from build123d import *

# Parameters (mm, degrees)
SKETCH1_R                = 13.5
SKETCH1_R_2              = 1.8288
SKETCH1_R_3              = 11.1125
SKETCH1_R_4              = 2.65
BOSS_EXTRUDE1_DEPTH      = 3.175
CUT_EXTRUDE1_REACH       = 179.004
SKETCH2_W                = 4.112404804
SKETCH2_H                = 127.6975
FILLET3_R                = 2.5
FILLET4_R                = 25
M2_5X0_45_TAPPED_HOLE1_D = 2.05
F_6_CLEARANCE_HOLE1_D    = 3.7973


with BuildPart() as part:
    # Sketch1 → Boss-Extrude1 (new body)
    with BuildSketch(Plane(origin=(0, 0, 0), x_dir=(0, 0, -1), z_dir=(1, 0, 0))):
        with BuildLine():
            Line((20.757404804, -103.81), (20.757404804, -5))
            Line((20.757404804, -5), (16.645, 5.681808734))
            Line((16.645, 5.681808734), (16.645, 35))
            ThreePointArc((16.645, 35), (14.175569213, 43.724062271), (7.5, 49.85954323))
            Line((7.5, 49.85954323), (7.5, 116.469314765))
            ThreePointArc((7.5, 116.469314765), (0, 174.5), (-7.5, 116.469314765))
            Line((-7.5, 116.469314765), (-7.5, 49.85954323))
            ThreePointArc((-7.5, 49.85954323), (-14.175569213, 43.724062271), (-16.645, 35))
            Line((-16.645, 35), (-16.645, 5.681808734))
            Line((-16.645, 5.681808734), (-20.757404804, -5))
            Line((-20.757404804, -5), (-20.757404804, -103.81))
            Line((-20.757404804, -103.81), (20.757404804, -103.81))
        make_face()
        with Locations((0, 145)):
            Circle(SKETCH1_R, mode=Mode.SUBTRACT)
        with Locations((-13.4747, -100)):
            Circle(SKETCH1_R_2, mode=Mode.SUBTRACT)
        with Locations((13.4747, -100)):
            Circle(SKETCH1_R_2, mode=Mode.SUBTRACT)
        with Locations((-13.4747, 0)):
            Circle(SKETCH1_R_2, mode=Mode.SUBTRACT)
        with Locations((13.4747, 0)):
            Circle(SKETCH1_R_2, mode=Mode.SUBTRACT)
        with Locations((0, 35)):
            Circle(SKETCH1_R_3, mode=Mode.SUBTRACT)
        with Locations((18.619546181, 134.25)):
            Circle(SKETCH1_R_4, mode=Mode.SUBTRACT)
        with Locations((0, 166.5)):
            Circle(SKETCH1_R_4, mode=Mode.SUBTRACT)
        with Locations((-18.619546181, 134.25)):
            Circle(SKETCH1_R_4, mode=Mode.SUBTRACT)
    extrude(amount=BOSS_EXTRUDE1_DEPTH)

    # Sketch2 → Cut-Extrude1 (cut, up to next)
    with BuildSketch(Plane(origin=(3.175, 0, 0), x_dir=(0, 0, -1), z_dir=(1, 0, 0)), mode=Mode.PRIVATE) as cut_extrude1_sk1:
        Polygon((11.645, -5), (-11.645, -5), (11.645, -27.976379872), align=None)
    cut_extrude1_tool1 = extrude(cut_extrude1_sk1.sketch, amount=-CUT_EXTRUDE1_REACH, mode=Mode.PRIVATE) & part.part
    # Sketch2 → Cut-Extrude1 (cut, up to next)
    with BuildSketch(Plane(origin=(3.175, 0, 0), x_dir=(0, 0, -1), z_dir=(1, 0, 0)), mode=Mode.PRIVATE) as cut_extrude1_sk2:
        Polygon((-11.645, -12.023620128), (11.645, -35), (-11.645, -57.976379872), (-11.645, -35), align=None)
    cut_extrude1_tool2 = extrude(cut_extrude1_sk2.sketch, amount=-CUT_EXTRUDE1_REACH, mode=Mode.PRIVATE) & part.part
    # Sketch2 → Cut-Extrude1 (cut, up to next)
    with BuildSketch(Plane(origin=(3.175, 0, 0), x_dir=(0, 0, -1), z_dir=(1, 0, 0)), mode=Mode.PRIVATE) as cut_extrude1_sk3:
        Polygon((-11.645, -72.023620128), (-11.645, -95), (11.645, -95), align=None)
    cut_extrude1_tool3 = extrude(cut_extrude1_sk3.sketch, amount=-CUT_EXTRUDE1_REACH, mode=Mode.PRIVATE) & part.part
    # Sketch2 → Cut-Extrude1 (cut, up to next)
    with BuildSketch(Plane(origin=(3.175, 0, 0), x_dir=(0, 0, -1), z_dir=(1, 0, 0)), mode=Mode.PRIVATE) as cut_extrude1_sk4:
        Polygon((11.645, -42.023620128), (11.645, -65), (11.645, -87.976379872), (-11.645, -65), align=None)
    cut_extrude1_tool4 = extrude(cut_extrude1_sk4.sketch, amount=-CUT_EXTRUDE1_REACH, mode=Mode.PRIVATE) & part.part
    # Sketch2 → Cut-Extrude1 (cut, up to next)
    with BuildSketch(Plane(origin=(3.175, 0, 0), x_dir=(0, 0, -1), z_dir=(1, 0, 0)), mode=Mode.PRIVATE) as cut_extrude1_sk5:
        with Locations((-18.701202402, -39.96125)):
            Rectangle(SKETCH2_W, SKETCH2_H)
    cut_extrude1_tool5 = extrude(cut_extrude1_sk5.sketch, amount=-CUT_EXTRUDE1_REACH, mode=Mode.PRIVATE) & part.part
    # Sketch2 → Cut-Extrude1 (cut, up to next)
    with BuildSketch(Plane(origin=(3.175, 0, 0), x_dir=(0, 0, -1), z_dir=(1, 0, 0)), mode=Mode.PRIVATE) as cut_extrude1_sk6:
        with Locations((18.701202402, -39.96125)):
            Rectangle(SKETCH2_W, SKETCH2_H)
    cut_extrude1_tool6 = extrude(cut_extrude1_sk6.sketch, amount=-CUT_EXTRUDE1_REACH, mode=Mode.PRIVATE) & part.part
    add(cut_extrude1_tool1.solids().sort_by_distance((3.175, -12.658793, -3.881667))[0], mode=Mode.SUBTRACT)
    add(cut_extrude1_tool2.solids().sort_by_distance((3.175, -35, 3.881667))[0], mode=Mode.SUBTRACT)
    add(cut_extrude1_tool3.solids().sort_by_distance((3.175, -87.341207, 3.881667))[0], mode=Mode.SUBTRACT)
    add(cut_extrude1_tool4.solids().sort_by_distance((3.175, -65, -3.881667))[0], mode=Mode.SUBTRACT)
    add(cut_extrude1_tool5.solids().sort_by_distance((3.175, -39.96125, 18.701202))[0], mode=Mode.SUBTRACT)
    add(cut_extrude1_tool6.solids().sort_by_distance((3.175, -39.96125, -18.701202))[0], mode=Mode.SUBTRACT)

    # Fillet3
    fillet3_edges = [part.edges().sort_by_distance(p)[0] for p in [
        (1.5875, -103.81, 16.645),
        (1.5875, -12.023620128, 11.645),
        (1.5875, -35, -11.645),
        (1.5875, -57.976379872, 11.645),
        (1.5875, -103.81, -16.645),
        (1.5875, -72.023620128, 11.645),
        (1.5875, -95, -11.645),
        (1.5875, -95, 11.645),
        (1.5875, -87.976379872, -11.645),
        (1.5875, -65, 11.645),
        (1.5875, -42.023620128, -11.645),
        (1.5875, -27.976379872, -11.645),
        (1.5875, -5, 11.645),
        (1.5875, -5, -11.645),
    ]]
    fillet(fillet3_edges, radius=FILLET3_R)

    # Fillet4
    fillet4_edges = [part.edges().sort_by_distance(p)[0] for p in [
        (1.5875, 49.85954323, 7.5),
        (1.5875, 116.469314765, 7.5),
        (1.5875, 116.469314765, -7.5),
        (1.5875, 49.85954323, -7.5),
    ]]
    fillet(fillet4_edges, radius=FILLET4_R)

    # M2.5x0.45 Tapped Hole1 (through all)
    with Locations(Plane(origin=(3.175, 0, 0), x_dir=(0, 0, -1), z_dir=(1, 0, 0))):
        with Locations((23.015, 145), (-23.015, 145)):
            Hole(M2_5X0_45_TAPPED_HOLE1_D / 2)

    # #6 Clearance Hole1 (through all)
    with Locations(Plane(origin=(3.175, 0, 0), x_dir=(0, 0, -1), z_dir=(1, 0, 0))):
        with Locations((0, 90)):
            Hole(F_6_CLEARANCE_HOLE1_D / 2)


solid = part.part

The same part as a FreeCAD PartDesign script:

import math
import FreeCAD as App
import Part
import Sketcher
Q = App.Units.Quantity


def edges_at(feature, points):
    """Names of the edges that pass closest to the given points."""
    edges = feature.Shape.Edges
    near = lambda p: min(range(len(edges)), key=lambda i: edges[i].distToShape(Part.Vertex(*p))[0])
    return sorted({f"Edge{near(p) + 1}" for p in points})

doc = App.newDocument("Part")
body = doc.addObject("PartDesign::Body", "Body")

# Sketch on YZ plane
sketch1 = body.newObject("Sketcher::SketchObject", "Sketch")
sketch1.AttachmentSupport = (doc.getObject("YZ_Plane"), [""])
sketch1.MapMode = "FlatFace"
sketch1.addGeometry([
    Part.LineSegment(App.Vector(-103.8, -20.8, 0), App.Vector(-5, -20.8, 0)),  # 0
    Part.LineSegment(App.Vector(-5, -20.8, 0), App.Vector(5.7, -16.6, 0)),  # 1
    Part.LineSegment(App.Vector(5.7, -16.6, 0), App.Vector(35, -16.6, 0)),  # 2
    Part.ArcOfCircle(Part.Circle(App.Vector(35, 0, 0), App.Vector(0, 0, 1), 16.6), math.radians(-90), math.radians(-27)),  # 3
    Part.LineSegment(App.Vector(49.9, -7.5, 0), App.Vector(116.5, -7.5, 0)),  # 4
    Part.ArcOfCircle(Part.Circle(App.Vector(145, 0, 0), App.Vector(0, 0, 1), 29.5), math.radians(-165), math.radians(165)),  # 5
    Part.LineSegment(App.Vector(116.5, 7.5, 0), App.Vector(49.9, 7.5, 0)),  # 6
    Part.ArcOfCircle(Part.Circle(App.Vector(35, 0, 0), App.Vector(0, 0, 1), 16.6), math.radians(27), math.radians(90)),  # 7
    Part.LineSegment(App.Vector(35, 16.6, 0), App.Vector(5.7, 16.6, 0)),  # 8
    Part.LineSegment(App.Vector(5.7, 16.6, 0), App.Vector(-5, 20.8, 0)),  # 9
    Part.LineSegment(App.Vector(-5, 20.8, 0), App.Vector(-103.8, 20.8, 0)),  # 10
    Part.LineSegment(App.Vector(-103.8, 20.8, 0), App.Vector(-103.8, -20.8, 0)),  # 11
    Part.Circle(App.Vector(-100, 13.5, 0), App.Vector(0, 0, 1), 1.8),  # 12
    Part.Circle(App.Vector(0, 13.5, 0), App.Vector(0, 0, 1), 1.8),  # 13
    Part.Circle(App.Vector(-100, -13.5, 0), App.Vector(0, 0, 1), 1.8),  # 14
    Part.Circle(App.Vector(0, -13.5, 0), App.Vector(0, 0, 1), 1.8),  # 15
    Part.Circle(App.Vector(134.2, 18.6, 0), App.Vector(0, 0, 1), 2.6),  # 16
    Part.Circle(App.Vector(35, 0, 0), App.Vector(0, 0, 1), 11.1),  # 17
    Part.Circle(App.Vector(145, 0, 0), App.Vector(0, 0, 1), 13.5),  # 18
    Part.Circle(App.Vector(166.5, 0, 0), App.Vector(0, 0, 1), 2.6),  # 19
    Part.Circle(App.Vector(134.2, -18.6, 0), App.Vector(0, 0, 1), 2.6),  # 20
], False)
sketch1.addConstraint([
    Sketcher.Constraint("Coincident", 0, 2, 1, 1),
    Sketcher.Constraint("Coincident", 1, 2, 2, 1),
    Sketcher.Constraint("Tangent", 2, 2, 3, 1),
    Sketcher.Constraint("Coincident", 3, 2, 4, 1),
    Sketcher.Constraint("Coincident", 4, 2, 5, 1),
    Sketcher.Constraint("Coincident", 5, 2, 6, 1),
    Sketcher.Constraint("Coincident", 6, 2, 7, 1),
    Sketcher.Constraint("Tangent", 7, 2, 8, 1),
    Sketcher.Constraint("Coincident", 8, 2, 9, 1),
    Sketcher.Constraint("Coincident", 9, 2, 10, 1),
    Sketcher.Constraint("Coincident", 10, 2, 11, 1),
    Sketcher.Constraint("Coincident", 11, 2, 0, 1),
    Sketcher.Constraint("Horizontal", 0),
    Sketcher.Constraint("Horizontal", 2),
    Sketcher.Constraint("Horizontal", 4),
    Sketcher.Constraint("Horizontal", 6),
    Sketcher.Constraint("Horizontal", 8),
    Sketcher.Constraint("Horizontal", 10),
    Sketcher.Constraint("Vertical", 11),
    Sketcher.Constraint("Coincident", 7, 3, 3, 3),
    Sketcher.Constraint("Coincident", 17, 3, 3, 3),
    Sketcher.Constraint("Coincident", 18, 3, 5, 3),
    Sketcher.Constraint("Equal", 3, 7),
    Sketcher.Constraint("Equal", 12, 13),
    Sketcher.Constraint("Equal", 13, 14),
    Sketcher.Constraint("Equal", 14, 15),
    Sketcher.Constraint("Equal", 16, 19),
    Sketcher.Constraint("Equal", 19, 20),
    Sketcher.Constraint("Symmetric", 13, 3, 15, 3, -1, 1),
    Sketcher.Constraint("Symmetric", 12, 3, 14, 3, -1),
    Sketcher.Constraint("Symmetric", 16, 3, 20, 3, -1),
    Sketcher.Constraint("Symmetric", 4, 2, 5, 2, -1),
    Sketcher.Constraint("Symmetric", 1, 2, 8, 2, -1),
    Sketcher.Constraint("Symmetric", 0, 2, 9, 2, -1),
    Sketcher.Constraint("PointOnObject", 13, 3, -2),
    Sketcher.Constraint("PointOnObject", 19, 3, -1),
    Sketcher.Constraint("Horizontal", 12, 3, 13, 3),
    Sketcher.Constraint("Diameter", 18, Q("27 mm")),
    Sketcher.Constraint("Diameter", 16, Q("5.3 mm")),
    Sketcher.Constraint("Radius", 5, Q("29.5 mm")),
    Sketcher.Constraint("Diameter", 17, Q("22.225 mm")),
    Sketcher.Constraint("DistanceX", -1, 1, 3, 3, Q("35 mm")),
    Sketcher.Constraint("DistanceX", -1, 1, 5, 3, Q("145 mm")),
    Sketcher.Constraint("DistanceX", 12, 3, -1, 1, Q("100 mm")),
    Sketcher.Constraint("DistanceX", 0, 2, -1, 1, Q("5 mm")),
    Sketcher.Constraint("Radius", 3, Q("16.645 mm")),
    Sketcher.Constraint("DistanceY", 4, 2, 5, 2, Q("15 mm")),
    Sketcher.Constraint("Diameter", 12, Q("3.6576 mm")),
    Sketcher.Constraint("DistanceX", 0, 1, 0, 2, Q("98.81 mm")),
    Sketcher.Constraint("DistanceX", -1, 1, 19, 3, Q("166.5 mm")),
    Sketcher.Constraint("DistanceX", -1, 1, 16, 3, Q("134.25 mm")),
    Sketcher.Constraint("DistanceX", 2, 1, 2, 2, Q("29.318191 mm")),
    Sketcher.Constraint("DistanceY", 11, 2, 11, 1, Q("41.51481 mm")),
    Sketcher.Constraint("DistanceY", -1, 1, 12, 3, Q("13.4747 mm")),
    Sketcher.Constraint("DistanceY", -1, 1, 16, 3, Q("18.619546 mm")),
])
pad1 = body.newObject("PartDesign::Pad", "Pad")
pad1.Profile = sketch1
pad1.Length = 3.175

# Sketch on YZ plane
sketch2 = body.newObject("Sketcher::SketchObject", "Sketch001")
sketch2.AttachmentSupport = (doc.getObject("YZ_Plane"), [""])
sketch2.MapMode = "FlatFace"
sketch2.AttachmentOffset = App.Placement(App.Vector(0, 0, 3.175), App.Rotation())
sketch2.addGeometry([
    Part.LineSegment(App.Vector(-5, -12, 0), App.Vector(-5, 12, 0)),
    Part.LineSegment(App.Vector(-5, 12, 0), App.Vector(-28, -12, 0)),
    Part.LineSegment(App.Vector(-28, -12, 0), App.Vector(-5, -12, 0)),
], False)
sketch2.addConstraint([
    Sketcher.Constraint("Coincident", 0, 2, 1, 1),
    Sketcher.Constraint("Coincident", 1, 2, 2, 1),
    Sketcher.Constraint("Coincident", 2, 2, 0, 1),
    Sketcher.Constraint("Vertical", 0),
    Sketcher.Constraint("Horizontal", 2),
    Sketcher.Constraint("DistanceX", 0, 2, -1, 1, Q("5 mm")),
    Sketcher.Constraint("DistanceY", 0, 1, 0, 2, Q("23.29 mm")),
    Sketcher.Constraint("DistanceY", -1, 1, 0, 2, Q("11.645 mm")),
    Sketcher.Constraint("DistanceX", 2, 1, 2, 2, Q("22.97638 mm")),
])
pocket1 = body.newObject("PartDesign::Pocket", "Pocket")
pocket1.Profile = sketch2
pocket1.Type = "UpToFirst"

# Sketch on YZ plane
sketch3 = body.newObject("Sketcher::SketchObject", "Sketch002")
sketch3.AttachmentSupport = (doc.getObject("YZ_Plane"), [""])
sketch3.MapMode = "FlatFace"
sketch3.AttachmentOffset = App.Placement(App.Vector(0, 0, 3.175), App.Rotation())
sketch3.addGeometry([
    Part.LineSegment(App.Vector(-35, -12, 0), App.Vector(-12, 12, 0)),
    Part.LineSegment(App.Vector(-12, 12, 0), App.Vector(-58, 12, 0)),
    Part.LineSegment(App.Vector(-58, 12, 0), App.Vector(-35, -12, 0)),
], False)
sketch3.addConstraint([
    Sketcher.Constraint("Coincident", 0, 2, 1, 1),
    Sketcher.Constraint("Coincident", 1, 2, 2, 1),
    Sketcher.Constraint("Coincident", 2, 2, 0, 1),
    Sketcher.Constraint("Horizontal", 1),
    Sketcher.Constraint("Equal", 0, 2),
    Sketcher.Constraint("DistanceX", 2, 2, -1, 1, Q("35 mm")),
    Sketcher.Constraint("DistanceY", 2, 2, 0, 2, Q("23.29 mm")),
    Sketcher.Constraint("DistanceY", -1, 1, 0, 2, Q("11.645 mm")),
    Sketcher.Constraint("DistanceX", 1, 2, 1, 1, Q("45.95276 mm")),
])
pocket2 = body.newObject("PartDesign::Pocket", "Pocket001")
pocket2.Profile = sketch3
pocket2.Type = "UpToFirst"

# Sketch on YZ plane
sketch4 = body.newObject("Sketcher::SketchObject", "Sketch003")
sketch4.AttachmentSupport = (doc.getObject("YZ_Plane"), [""])
sketch4.MapMode = "FlatFace"
sketch4.AttachmentOffset = App.Placement(App.Vector(0, 0, 3.175), App.Rotation())
sketch4.addGeometry([
    Part.LineSegment(App.Vector(-72, 12, 0), App.Vector(-95, 12, 0)),
    Part.LineSegment(App.Vector(-95, 12, 0), App.Vector(-95, -12, 0)),
    Part.LineSegment(App.Vector(-95, -12, 0), App.Vector(-72, 12, 0)),
], False)
sketch4.addConstraint([
    Sketcher.Constraint("Coincident", 0, 2, 1, 1),
    Sketcher.Constraint("Coincident", 1, 2, 2, 1),
    Sketcher.Constraint("Coincident", 2, 2, 0, 1),
    Sketcher.Constraint("Horizontal", 0),
    Sketcher.Constraint("Vertical", 1),
    Sketcher.Constraint("DistanceX", 0, 2, -1, 1, Q("95 mm")),
    Sketcher.Constraint("DistanceY", 1, 2, 1, 1, Q("23.29 mm")),
    Sketcher.Constraint("DistanceY", -1, 1, 0, 2, Q("11.645 mm")),
    Sketcher.Constraint("DistanceX", 0, 2, 0, 1, Q("22.97638 mm")),
])
pocket3 = body.newObject("PartDesign::Pocket", "Pocket002")
pocket3.Profile = sketch4
pocket3.Type = "UpToFirst"

# Sketch on YZ plane
sketch5 = body.newObject("Sketcher::SketchObject", "Sketch004")
sketch5.AttachmentSupport = (doc.getObject("YZ_Plane"), [""])
sketch5.MapMode = "FlatFace"
sketch5.AttachmentOffset = App.Placement(App.Vector(0, 0, 3.175), App.Rotation())
sketch5.addGeometry([
    Part.LineSegment(App.Vector(-88, -12, 0), App.Vector(-42, -12, 0)),
    Part.LineSegment(App.Vector(-42, -12, 0), App.Vector(-65, 12, 0)),
    Part.LineSegment(App.Vector(-65, 12, 0), App.Vector(-88, -12, 0)),
], False)
sketch5.addConstraint([
    Sketcher.Constraint("Coincident", 0, 2, 1, 1),
    Sketcher.Constraint("Coincident", 1, 2, 2, 1),
    Sketcher.Constraint("Coincident", 2, 2, 0, 1),
    Sketcher.Constraint("Horizontal", 0),
    Sketcher.Constraint("Equal", 1, 2),
    Sketcher.Constraint("DistanceX", 1, 2, -1, 1, Q("65 mm")),
    Sketcher.Constraint("DistanceY", 0, 2, 1, 2, Q("23.29 mm")),
    Sketcher.Constraint("DistanceY", 0, 2, -1, 1, Q("11.645 mm")),
    Sketcher.Constraint("DistanceX", 0, 1, 0, 2, Q("45.95276 mm")),
])
pocket4 = body.newObject("PartDesign::Pocket", "Pocket003")
pocket4.Profile = sketch5
pocket4.Type = "UpToFirst"

# Sketch on YZ plane
sketch6 = body.newObject("Sketcher::SketchObject", "Sketch005")
sketch6.AttachmentSupport = (doc.getObject("YZ_Plane"), [""])
sketch6.MapMode = "FlatFace"
sketch6.AttachmentOffset = App.Placement(App.Vector(0, 0, 3.175), App.Rotation())
sketch6.addGeometry([
    Part.LineSegment(App.Vector(23.9, 20.8, 0), App.Vector(-103.8, 20.8, 0)),
    Part.LineSegment(App.Vector(-103.8, 20.8, 0), App.Vector(-103.8, 16.6, 0)),
    Part.LineSegment(App.Vector(-103.8, 16.6, 0), App.Vector(23.9, 16.6, 0)),
    Part.LineSegment(App.Vector(23.9, 16.6, 0), App.Vector(23.9, 20.8, 0)),
], False)
sketch6.addConstraint([
    Sketcher.Constraint("Coincident", 0, 2, 1, 1),
    Sketcher.Constraint("Coincident", 1, 2, 2, 1),
    Sketcher.Constraint("Coincident", 2, 2, 3, 1),
    Sketcher.Constraint("Coincident", 3, 2, 0, 1),
    Sketcher.Constraint("Horizontal", 0),
    Sketcher.Constraint("Vertical", 1),
    Sketcher.Constraint("Horizontal", 2),
    Sketcher.Constraint("Vertical", 3),
    Sketcher.Constraint("DistanceX", 0, 2, -1, 1, Q("103.81 mm")),
    Sketcher.Constraint("DistanceX", 0, 2, 0, 1, Q("127.6975 mm")),
    Sketcher.Constraint("DistanceY", -1, 1, 1, 2, Q("16.645 mm")),
    Sketcher.Constraint("DistanceY", 1, 2, 1, 1, Q("4.112405 mm")),
])
pocket5 = body.newObject("PartDesign::Pocket", "Pocket004")
pocket5.Profile = sketch6
pocket5.Type = "UpToFirst"

# Sketch on YZ plane
sketch7 = body.newObject("Sketcher::SketchObject", "Sketch006")
sketch7.AttachmentSupport = (doc.getObject("YZ_Plane"), [""])
sketch7.MapMode = "FlatFace"
sketch7.AttachmentOffset = App.Placement(App.Vector(0, 0, 3.175), App.Rotation())
sketch7.addGeometry([
    Part.LineSegment(App.Vector(23.9, -16.6, 0), App.Vector(-103.8, -16.6, 0)),
    Part.LineSegment(App.Vector(-103.8, -16.6, 0), App.Vector(-103.8, -20.8, 0)),
    Part.LineSegment(App.Vector(-103.8, -20.8, 0), App.Vector(23.9, -20.8, 0)),
    Part.LineSegment(App.Vector(23.9, -20.8, 0), App.Vector(23.9, -16.6, 0)),
], False)
sketch7.addConstraint([
    Sketcher.Constraint("Coincident", 0, 2, 1, 1),
    Sketcher.Constraint("Coincident", 1, 2, 2, 1),
    Sketcher.Constraint("Coincident", 2, 2, 3, 1),
    Sketcher.Constraint("Coincident", 3, 2, 0, 1),
    Sketcher.Constraint("Horizontal", 0),
    Sketcher.Constraint("Vertical", 1),
    Sketcher.Constraint("Horizontal", 2),
    Sketcher.Constraint("Vertical", 3),
    Sketcher.Constraint("DistanceX", 0, 2, -1, 1, Q("103.81 mm")),
    Sketcher.Constraint("DistanceX", 0, 2, 0, 1, Q("127.6975 mm")),
    Sketcher.Constraint("DistanceY", 0, 2, -1, 1, Q("16.645 mm")),
    Sketcher.Constraint("DistanceY", 1, 2, 1, 1, Q("4.112405 mm")),
])
pocket6 = body.newObject("PartDesign::Pocket", "Pocket005")
pocket6.Profile = sketch7
pocket6.Type = "UpToFirst"
doc.recompute()

fillet = body.newObject("PartDesign::Fillet", "Fillet")
fillet.Base = (pocket6, edges_at(pocket6, [
    (1.587, -103.81, 16.645),
    (1.587, -12.024, 11.645),
    (1.587, -35, -11.645),
    (1.587, -57.976, 11.645),
    (1.587, -103.81, -16.645),
    (1.587, -72.024, 11.645),
    (1.587, -95, -11.645),
    (1.587, -95, 11.645),
    (1.587, -87.976, -11.645),
    (1.587, -65, 11.645),
    (1.587, -42.024, -11.645),
    (1.587, -27.976, -11.645),
    (1.587, -5, 11.645),
    (1.587, -5, -11.645),
]))
fillet.Radius = 2.5
doc.recompute()

fillet2 = body.newObject("PartDesign::Fillet", "Fillet001")
fillet2.Base = (fillet, edges_at(fillet, [
    (1.587, 49.86, 7.5),
    (1.587, 116.469, 7.5),
    (1.587, 116.469, -7.5),
    (1.587, 49.86, -7.5),
]))
fillet2.Radius = 25

# Sketch on YZ plane
sketch8 = body.newObject("Sketcher::SketchObject", "Sketch007")
sketch8.AttachmentSupport = (doc.getObject("YZ_Plane"), [""])
sketch8.MapMode = "FlatFace"
sketch8.AttachmentOffset = App.Placement(App.Vector(0, 0, 3.175), App.Rotation())
sketch8.addGeometry([
    Part.Circle(App.Vector(145, -23, 0), App.Vector(0, 0, 1), 1),
    Part.Circle(App.Vector(145, 23, 0), App.Vector(0, 0, 1), 1),
], False)
sketch8.addConstraint([
    Sketcher.Constraint("Equal", 0, 1),
    Sketcher.Constraint("Symmetric", 0, 3, 1, 3, -1),
    Sketcher.Constraint("Diameter", 0, Q("2.05 mm")),
    Sketcher.Constraint("DistanceX", -1, 1, 0, 3, Q("145 mm")),
    Sketcher.Constraint("DistanceY", 0, 3, 1, 3, Q("46.03 mm")),
])
doc.recompute()
hole = body.newObject("PartDesign::Hole", "Hole")
hole.Profile = sketch8
hole.ThreadType = "None"
hole.Diameter = 2.05
hole.DepthType = "ThroughAll"

# Sketch on YZ plane
sketch9 = body.newObject("Sketcher::SketchObject", "Sketch008")
sketch9.AttachmentSupport = (doc.getObject("YZ_Plane"), [""])
sketch9.MapMode = "FlatFace"
sketch9.AttachmentOffset = App.Placement(App.Vector(0, 0, 3.175), App.Rotation())
sketch9.addGeometry(Part.Circle(App.Vector(90, 0, 0), App.Vector(0, 0, 1), 1.9), False)
sketch9.addConstraint([
    Sketcher.Constraint("PointOnObject", 0, 3, -1),
    Sketcher.Constraint("DistanceX", -1, 1, 0, 3, Q("90 mm")),
    Sketcher.Constraint("Diameter", 0, Q("3.7973 mm")),
])
doc.recompute()
hole2 = body.newObject("PartDesign::Hole", "Hole001")
hole2.Profile = sketch9
hole2.ThreadType = "None"
hole2.Diameter = 3.7973
hole2.DepthType = "ThroughAll"

doc.recompute()
